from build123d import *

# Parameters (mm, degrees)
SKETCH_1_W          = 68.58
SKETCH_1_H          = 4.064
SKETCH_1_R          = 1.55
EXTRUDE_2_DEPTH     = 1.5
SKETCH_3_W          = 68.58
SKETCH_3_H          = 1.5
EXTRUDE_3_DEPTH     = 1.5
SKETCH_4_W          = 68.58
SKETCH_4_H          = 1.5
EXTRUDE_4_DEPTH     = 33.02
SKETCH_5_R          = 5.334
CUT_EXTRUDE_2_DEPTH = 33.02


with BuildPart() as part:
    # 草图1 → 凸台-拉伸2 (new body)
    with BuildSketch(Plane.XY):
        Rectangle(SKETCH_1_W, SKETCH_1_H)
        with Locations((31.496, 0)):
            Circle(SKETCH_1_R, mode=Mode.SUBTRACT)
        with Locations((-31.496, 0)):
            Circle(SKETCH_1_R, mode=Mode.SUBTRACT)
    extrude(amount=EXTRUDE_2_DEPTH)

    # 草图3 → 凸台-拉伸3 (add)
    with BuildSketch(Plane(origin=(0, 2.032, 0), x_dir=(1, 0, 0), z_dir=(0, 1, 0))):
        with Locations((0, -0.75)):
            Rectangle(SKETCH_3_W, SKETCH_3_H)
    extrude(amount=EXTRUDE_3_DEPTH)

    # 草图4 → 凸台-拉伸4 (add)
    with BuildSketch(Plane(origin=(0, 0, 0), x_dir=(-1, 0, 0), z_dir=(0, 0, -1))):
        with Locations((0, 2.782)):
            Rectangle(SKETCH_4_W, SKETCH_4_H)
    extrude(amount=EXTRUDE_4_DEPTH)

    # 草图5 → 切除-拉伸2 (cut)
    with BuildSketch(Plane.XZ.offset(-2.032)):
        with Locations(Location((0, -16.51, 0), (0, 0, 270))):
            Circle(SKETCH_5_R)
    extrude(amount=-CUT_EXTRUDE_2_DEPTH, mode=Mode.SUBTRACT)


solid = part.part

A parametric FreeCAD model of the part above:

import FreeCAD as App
import Part
import Sketcher
from FreeCAD import Vector
Q = App.Units.Quantity


def add_polygon(sketch, points):
    """Adds a closed chain of lines whose ends are joined by coincident constraints."""
    first, n = sketch.GeometryCount, len(points)
    for a, b in zip(points, points[1:] + points[:1]):
        sketch.addGeometry(Part.LineSegment(App.Vector(*a, 0), App.Vector(*b, 0)), False)
    for i in range(n):
        sketch.addConstraint(Sketcher.Constraint("Coincident", first + i, 2, first + (i + 1) % n, 1))

doc = App.newDocument("Part")
body = doc.addObject("PartDesign::Body", "Body")

# Sketch on XY plane
sketch1 = body.newObject("Sketcher::SketchObject", "Sketch")
sketch1.AttachmentSupport = (doc.getObject("XY_Plane"), [""])
sketch1.MapMode = "FlatFace"
add_polygon(sketch1, [(-34.3, 2), (-34.3, -2), (34.3, -2), (34.3, 2)])  # lines 0-3
sketch1.addGeometry(Part.Circle(Vector(-31.5, 0, 0), Vector(0, 0, 1), 1.6), False)  # 4
sketch1.addGeometry(Part.Circle(Vector(31.5, 0, 0), Vector(0, 0, 1), 1.6), False)  # 5
sketch1.addConstraint([
    Sketcher.Constraint("Vertical", 0),
    Sketcher.Constraint("Horizontal", 1),
    Sketcher.Constraint("Vertical", 2),
    Sketcher.Constraint("Horizontal", 3),
    Sketcher.Constraint("Equal", 4, 5),
    Sketcher.Constraint("Symmetric", 4, 3, 5, 3, -1, 1),
    Sketcher.Constraint("Symmetric", 0, 2, 2, 2, -1, 1),
    Sketcher.Constraint("PointOnObject", 4, 3, -1),
    Sketcher.Constraint("DistanceX", 1, 1, 1, 2, Q("2.7 in")),
    Sketcher.Constraint("DistanceY", 0, 2, 0, 1, Q("0.16 in")),
    Sketcher.Constraint("Diameter", 4, 3.1),
    Sketcher.Constraint("DistanceX", 4, 3, -1, 1, Q("1.24 in")),
])
pad1 = body.newObject("PartDesign::Pad", "Pad")
pad1.Profile = sketch1
pad1.Length = 1.5

# Sketch on XZ plane
sketch2 = body.newObject("Sketcher::SketchObject", "Sketch001")
sketch2.AttachmentSupport = (doc.getObject("XZ_Plane"), [""])
sketch2.MapMode = "FlatFace"
sketch2.AttachmentOffset = App.Placement(Vector(0, 0, -0.08 * 25.4), App.Rotation())
add_polygon(sketch2, [(-34.3, 0), (-34.3, 1.5), (34.3, 1.5), (34.3, 0)])  # lines 0-3
sketch2.addConstraint([
    Sketcher.Constraint("Vertical", 0),
    Sketcher.Constraint("Horizontal", 1),
    Sketcher.Constraint("Vertical", 2),
    Sketcher.Constraint("Horizontal", 3),
    Sketcher.Constraint("Symmetric", 2, 2, 3, 2, -1, 1),
    Sketcher.Constraint("DistanceX", 1, 1, 1, 2, Q("2.7 in")),
    Sketcher.Constraint("DistanceY", 0, 1, 0, 2, 1.5),
])
pad2 = body.newObject("PartDesign::Pad", "Pad001")
pad2.Profile = sketch2
pad2.Length = 1.5
pad2.Reversed = True

# Sketch on XY plane
sketch3 = body.newObject("Sketcher::SketchObject", "Sketch002")
sketch3.AttachmentSupport = (doc.getObject("XY_Plane"), [""])
sketch3.MapMode = "FlatFace"
add_polygon(sketch3, [(34.3, 3.5), (34.3, 2), (-34.3, 2), (-34.3, 3.5)])  # lines 0-3
sketch3.addConstraint([
    Sketcher.Constraint("Vertical", 0),
    Sketcher.Constraint("Horizontal", 1),
    Sketcher.Constraint("Vertical", 2),
    Sketcher.Constraint("Horizontal", 3),
    Sketcher.Constraint("DistanceX", 1, 2, 1, 1, Q("2.7 in")),
    Sketcher.Constraint("DistanceX", -1, 1, 0, 2, Q("1.35 in")),
    Sketcher.Constraint("DistanceY", -1, 1, 0, 2, Q("0.08 in")),
    Sketcher.Constraint("DistanceY", 0, 2, 0, 1, 1.5),
])
pad3 = body.newObject("PartDesign::Pad", "Pad002")
pad3.Profile = sketch3
pad3.Length = Q("1.3 in")
pad3.Reversed = True

# Sketch on XZ plane
sketch4 = body.newObject("Sketcher::SketchObject", "Sketch003")
sketch4.AttachmentSupport = (doc.getObject("XZ_Plane"), [""])
sketch4.MapMode = "FlatFace"
sketch4.AttachmentOffset = App.Placement(Vector(0, 0, -0.08 * 25.4), App.Rotation())
sketch4.addGeometry(Part.Circle(Vector(0, -17, 0), Vector(0, 0, 1), 5), False)
sketch4.addConstraint([
    Sketcher.Constraint("PointOnObject", 0, 3, -2),
    Sketcher.Constraint("Diameter", 0, Q("0.42 in")),
    Sketcher.Constraint("DistanceY", 0, 3, -1, 1, Q("0.65 in")),
])
pocket1 = body.newObject("PartDesign::Pocket", "Pocket")
pocket1.Profile = sketch4
pocket1.Length = Q("1.3 in")

doc.recompute()
